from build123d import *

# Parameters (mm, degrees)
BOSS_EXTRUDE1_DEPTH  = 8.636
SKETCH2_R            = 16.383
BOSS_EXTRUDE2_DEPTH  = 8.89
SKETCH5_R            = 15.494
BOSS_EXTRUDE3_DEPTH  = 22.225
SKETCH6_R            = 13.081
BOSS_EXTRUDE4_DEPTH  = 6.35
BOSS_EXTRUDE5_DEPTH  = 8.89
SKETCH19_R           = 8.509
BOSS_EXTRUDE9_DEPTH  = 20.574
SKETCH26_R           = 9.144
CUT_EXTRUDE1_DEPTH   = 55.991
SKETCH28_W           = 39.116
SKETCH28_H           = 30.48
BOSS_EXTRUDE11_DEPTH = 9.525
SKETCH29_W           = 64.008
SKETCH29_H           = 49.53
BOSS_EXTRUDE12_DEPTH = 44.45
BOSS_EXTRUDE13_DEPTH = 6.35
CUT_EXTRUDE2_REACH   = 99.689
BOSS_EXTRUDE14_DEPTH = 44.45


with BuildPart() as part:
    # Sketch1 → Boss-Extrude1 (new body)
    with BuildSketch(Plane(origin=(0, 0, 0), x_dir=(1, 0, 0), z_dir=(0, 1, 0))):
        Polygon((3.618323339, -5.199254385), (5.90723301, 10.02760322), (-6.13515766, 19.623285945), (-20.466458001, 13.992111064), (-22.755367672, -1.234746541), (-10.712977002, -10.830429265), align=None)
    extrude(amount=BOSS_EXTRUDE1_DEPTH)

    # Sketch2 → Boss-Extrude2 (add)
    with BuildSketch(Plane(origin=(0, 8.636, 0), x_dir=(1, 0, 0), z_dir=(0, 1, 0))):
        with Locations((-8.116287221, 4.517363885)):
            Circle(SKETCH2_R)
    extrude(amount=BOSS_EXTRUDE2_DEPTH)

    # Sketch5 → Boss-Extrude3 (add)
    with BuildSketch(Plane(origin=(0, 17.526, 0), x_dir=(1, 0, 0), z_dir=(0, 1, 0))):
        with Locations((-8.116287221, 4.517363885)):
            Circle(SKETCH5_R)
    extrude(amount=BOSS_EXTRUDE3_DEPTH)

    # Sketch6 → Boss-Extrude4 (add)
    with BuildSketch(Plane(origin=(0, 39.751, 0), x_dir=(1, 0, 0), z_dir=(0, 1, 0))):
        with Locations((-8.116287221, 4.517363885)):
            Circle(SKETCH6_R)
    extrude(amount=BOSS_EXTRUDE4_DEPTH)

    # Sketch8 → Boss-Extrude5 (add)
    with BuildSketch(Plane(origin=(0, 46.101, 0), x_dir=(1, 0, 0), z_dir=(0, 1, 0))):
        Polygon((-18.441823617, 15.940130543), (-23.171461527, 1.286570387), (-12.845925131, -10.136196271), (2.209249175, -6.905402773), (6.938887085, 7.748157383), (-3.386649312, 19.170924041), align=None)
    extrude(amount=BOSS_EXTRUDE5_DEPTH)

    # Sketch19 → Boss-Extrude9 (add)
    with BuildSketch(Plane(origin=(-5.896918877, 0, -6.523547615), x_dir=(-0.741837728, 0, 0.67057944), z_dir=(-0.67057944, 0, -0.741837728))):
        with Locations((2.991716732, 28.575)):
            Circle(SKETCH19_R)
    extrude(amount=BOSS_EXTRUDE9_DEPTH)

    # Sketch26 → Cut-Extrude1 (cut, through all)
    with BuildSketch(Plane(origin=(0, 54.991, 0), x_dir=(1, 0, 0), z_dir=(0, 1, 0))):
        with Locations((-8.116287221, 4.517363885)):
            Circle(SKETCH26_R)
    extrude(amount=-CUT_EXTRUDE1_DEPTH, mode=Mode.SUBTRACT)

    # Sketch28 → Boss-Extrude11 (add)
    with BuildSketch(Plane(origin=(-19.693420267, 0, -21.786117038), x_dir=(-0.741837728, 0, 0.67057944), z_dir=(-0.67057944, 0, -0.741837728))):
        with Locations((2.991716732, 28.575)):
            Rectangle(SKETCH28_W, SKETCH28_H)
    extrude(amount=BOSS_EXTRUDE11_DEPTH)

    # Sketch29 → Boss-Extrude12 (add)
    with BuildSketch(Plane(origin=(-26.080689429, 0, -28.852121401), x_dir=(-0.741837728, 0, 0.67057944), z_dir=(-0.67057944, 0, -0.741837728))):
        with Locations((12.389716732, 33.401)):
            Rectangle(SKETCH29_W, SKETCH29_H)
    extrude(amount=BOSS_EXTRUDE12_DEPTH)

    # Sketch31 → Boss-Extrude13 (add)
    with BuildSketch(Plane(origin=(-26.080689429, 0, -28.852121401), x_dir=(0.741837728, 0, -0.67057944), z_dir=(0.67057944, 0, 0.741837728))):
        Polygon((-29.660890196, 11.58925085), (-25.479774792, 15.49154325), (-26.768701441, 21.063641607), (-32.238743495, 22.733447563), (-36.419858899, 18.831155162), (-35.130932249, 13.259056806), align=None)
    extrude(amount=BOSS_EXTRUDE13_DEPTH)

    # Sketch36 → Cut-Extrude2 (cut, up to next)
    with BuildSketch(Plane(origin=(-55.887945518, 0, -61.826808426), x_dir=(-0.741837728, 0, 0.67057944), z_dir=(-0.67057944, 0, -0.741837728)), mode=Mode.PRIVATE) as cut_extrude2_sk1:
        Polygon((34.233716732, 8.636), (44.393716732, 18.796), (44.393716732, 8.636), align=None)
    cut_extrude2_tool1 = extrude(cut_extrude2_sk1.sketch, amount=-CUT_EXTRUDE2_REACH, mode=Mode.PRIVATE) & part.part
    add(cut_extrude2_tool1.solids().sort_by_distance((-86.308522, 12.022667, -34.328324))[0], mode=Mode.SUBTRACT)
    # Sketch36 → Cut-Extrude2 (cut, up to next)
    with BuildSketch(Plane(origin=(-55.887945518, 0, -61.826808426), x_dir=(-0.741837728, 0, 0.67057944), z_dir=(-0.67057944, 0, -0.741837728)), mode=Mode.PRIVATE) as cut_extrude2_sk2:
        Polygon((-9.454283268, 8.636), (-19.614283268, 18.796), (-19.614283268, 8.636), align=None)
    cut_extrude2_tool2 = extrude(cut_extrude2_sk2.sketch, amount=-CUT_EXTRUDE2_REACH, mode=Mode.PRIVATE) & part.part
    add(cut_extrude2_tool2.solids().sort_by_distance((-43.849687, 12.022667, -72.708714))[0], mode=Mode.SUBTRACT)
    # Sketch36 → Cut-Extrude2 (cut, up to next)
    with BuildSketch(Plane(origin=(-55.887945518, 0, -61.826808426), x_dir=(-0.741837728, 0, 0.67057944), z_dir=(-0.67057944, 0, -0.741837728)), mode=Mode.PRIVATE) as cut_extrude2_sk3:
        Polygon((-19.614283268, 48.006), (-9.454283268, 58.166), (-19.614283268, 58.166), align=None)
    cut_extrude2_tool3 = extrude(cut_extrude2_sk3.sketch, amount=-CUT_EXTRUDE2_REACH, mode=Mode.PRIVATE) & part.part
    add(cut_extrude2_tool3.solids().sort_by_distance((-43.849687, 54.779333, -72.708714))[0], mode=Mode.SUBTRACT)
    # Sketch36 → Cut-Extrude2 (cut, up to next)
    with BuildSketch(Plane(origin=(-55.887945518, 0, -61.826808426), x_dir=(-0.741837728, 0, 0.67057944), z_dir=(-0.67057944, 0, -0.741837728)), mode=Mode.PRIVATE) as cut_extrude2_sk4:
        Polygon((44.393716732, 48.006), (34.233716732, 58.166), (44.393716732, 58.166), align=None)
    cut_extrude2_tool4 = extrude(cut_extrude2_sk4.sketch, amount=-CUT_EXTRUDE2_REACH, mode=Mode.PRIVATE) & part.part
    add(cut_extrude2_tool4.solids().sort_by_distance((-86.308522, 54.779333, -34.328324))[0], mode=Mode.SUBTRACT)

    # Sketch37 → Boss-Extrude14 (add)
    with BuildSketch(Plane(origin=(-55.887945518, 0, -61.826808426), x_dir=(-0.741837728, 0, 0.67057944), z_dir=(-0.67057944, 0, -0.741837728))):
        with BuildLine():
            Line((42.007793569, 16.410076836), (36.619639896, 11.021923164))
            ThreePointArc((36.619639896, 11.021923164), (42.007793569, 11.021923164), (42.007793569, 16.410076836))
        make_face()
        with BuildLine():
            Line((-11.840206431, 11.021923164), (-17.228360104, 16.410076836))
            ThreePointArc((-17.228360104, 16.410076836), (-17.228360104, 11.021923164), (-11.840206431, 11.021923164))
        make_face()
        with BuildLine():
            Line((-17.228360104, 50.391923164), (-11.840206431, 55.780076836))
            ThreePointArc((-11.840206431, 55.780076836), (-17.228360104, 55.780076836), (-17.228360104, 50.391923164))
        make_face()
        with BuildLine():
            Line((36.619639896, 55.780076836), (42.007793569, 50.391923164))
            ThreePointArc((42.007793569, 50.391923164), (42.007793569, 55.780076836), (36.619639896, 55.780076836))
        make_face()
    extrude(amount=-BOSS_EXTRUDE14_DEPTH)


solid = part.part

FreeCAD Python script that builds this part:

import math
import FreeCAD as App
import Part
import Sketcher

V = App.Vector
Q = App.Units.Quantity

doc = App.newDocument("Part")
params = doc.addObject("Spreadsheet::Sheet", "Params")
for row, (alias, value) in enumerate([
    ("pad1_length", "0.34 in"),
    ("sketch2_diameter", "1.29 in"),
    ("pad2_length", "0.35 in"),
    ("sketch3_diameter", "1.22 in"),
    ("pad3_length", "0.875 in"),
    ("sketch4_diameter", "1.03 in"),
    ("pad4_length", "0.25 in"),
    ("pad5_length", "0.35 in"),
    ("sketch6_diameter", "0.67 in"),
    ("pad6_length", "0.81 in"),
    ("sketch7_diameter", "0.72 in"),
    ("sketch8_height", "1.2 in"),
    ("sketch8_width", "1.54 in"),
    ("pad7_length", "0.375 in"),
    ("sketch9_width", "2.52 in"),
    ("sketch9_height", "1.95 in"),
    ("pad8_length", "1.75 in"),
    ("pad9_length", "0.25 in"),
    ("sketch11_width", "0.4 in"),
    ("sketch12_width", "0.4 in"),
    ("pocket3_length", "2.125 in"),
    ("sketch13_width", "0.4 in"),
    ("sketch14_width", "0.4 in"),
    ("sketch15_radius", "0.15 in"),
    ("pad10_length", "1.75 in"),
], start=1):
    params.set(f"A{row}", alias)
    params.set(f"B{row}", "=" + value)
    params.setAlias(f"B{row}", alias)

body = doc.addObject("PartDesign::Body", "Body")

sketch1 = body.newObject("Sketcher::SketchObject", "Sketch")
sketch1.AttachmentSupport = (doc.getObject("XZ_Plane"), [""])
sketch1.MapMode = "FlatFace"
sketch1.addGeometry(Part.LineSegment(V(4, 5, 0), V(6, -10, 0)), False)
sketch1.addGeometry(Part.LineSegment(V(6, -10, 0), V(-6, -20, 0)), False)
sketch1.addGeometry(Part.LineSegment(V(-6, -20, 0), V(-20, -14, 0)), False)
sketch1.addGeometry(Part.LineSegment(V(-20, -14, 0), V(-23, 1, 0)), False)
sketch1.addGeometry(Part.LineSegment(V(-23, 1, 0), V(-11, 11, 0)), False)
sketch1.addGeometry(Part.LineSegment(V(-11, 11, 0), V(4, 5, 0)), False)
sketch1.addConstraint(Sketcher.Constraint("Coincident", 0, 2, 1, 1))
sketch1.addConstraint(Sketcher.Constraint("Coincident", 1, 2, 2, 1))
sketch1.addConstraint(Sketcher.Constraint("Coincident", 2, 2, 3, 1))
sketch1.addConstraint(Sketcher.Constraint("Coincident", 3, 2, 4, 1))
sketch1.addConstraint(Sketcher.Constraint("Coincident", 4, 2, 5, 1))
sketch1.addConstraint(Sketcher.Constraint("Coincident", 5, 2, 0, 1))
sketch1.addConstraint(Sketcher.Constraint("Parallel", 0, 3))
sketch1.addConstraint(Sketcher.Constraint("Parallel", 1, 4))
sketch1.addConstraint(Sketcher.Constraint("Parallel", 2, 5))
sketch1.addConstraint(Sketcher.Constraint("Equal", 0, 1))
sketch1.addConstraint(Sketcher.Constraint("Equal", 1, 2))
sketch1.addConstraint(Sketcher.Constraint("Equal", 2, 3))
sketch1.addConstraint(Sketcher.Constraint("DistanceX", 2, 2, 1, 2, 14.3313))
sketch1.addConstraint(Sketcher.Constraint("DistanceX", 3, 2, 0, 2, 28.662601))
sketch1.addConstraint(Sketcher.Constraint("Distance", 0, 15.397932))
sketch1.addConstraint(Sketcher.Constraint("DistanceX", 2, 2, -1, 1, 20.466458))
sketch1.addConstraint(Sketcher.Constraint("DistanceY", 2, 2, -1, 1, 13.992111))
sketch1.addConstraint(Sketcher.Constraint("DistanceY", -1, 1, 4, 2, 10.830429))
pad1 = body.newObject("PartDesign::Pad", "Pad")
pad1.Profile = sketch1
pad1.setExpression("Length", "Params.pad1_length")
pad1.Reversed = True

sketch2 = body.newObject("Sketcher::SketchObject", "Sketch001")
sketch2.AttachmentSupport = (doc.getObject("XZ_Plane"), [""])
sketch2.MapMode = "FlatFace"
sketch2.AttachmentOffset = App.Placement(V(0, 0, -0.34 * 25.4), App.Rotation())
sketch2.addGeometry(Part.Circle(V(-8, -5, 0), V(0, 0, 1), 16), False)
sketch2.addConstraint(Sketcher.Constraint("Diameter", 0, Q("1.29 in")))
sketch2.addConstraint(Sketcher.Constraint("DistanceX", 0, 3, -1, 1, 8.116287))
sketch2.addConstraint(Sketcher.Constraint("DistanceY", 0, 3, -1, 1, 4.517364))
sketch2.setExpression("Constraints[0]", "Params.sketch2_diameter")
pad2 = body.newObject("PartDesign::Pad", "Pad001")
pad2.Profile = sketch2
pad2.setExpression("Length", "Params.pad2_length")
pad2.Reversed = True

sketch3 = body.newObject("Sketcher::SketchObject", "Sketch002")
sketch3.AttachmentSupport = (doc.getObject("XZ_Plane"), [""])
sketch3.MapMode = "FlatFace"
sketch3.AttachmentOffset = App.Placement(V(0, 0, -0.69 * 25.4), App.Rotation())
sketch3.addGeometry(Part.Circle(V(-8, -5, 0), V(0, 0, 1), 15), False)
sketch3.addConstraint(Sketcher.Constraint("Diameter", 0, Q("1.22 in")))
sketch3.addConstraint(Sketcher.Constraint("DistanceX", 0, 3, -1, 1, 8.116287))
sketch3.addConstraint(Sketcher.Constraint("DistanceY", 0, 3, -1, 1, 4.517364))
sketch3.setExpression("Constraints[0]", "Params.sketch3_diameter")
pad3 = body.newObject("PartDesign::Pad", "Pad002")
pad3.Profile = sketch3
pad3.setExpression("Length", "Params.pad3_length")
pad3.Reversed = True

sketch4 = body.newObject("Sketcher::SketchObject", "Sketch003")
sketch4.AttachmentSupport = (doc.getObject("XZ_Plane"), [""])
sketch4.MapMode = "FlatFace"
sketch4.AttachmentOffset = App.Placement(V(0, 0, -1.565 * 25.4), App.Rotation())
sketch4.addGeometry(Part.Circle(V(-8, -5, 0), V(0, 0, 1), 13), False)
sketch4.addConstraint(Sketcher.Constraint("Diameter", 0, Q("1.03 in")))
sketch4.addConstraint(Sketcher.Constraint("DistanceX", 0, 3, -1, 1, 8.116287))
sketch4.addConstraint(Sketcher.Constraint("DistanceY", 0, 3, -1, 1, 4.517364))
sketch4.setExpression("Constraints[0]", "Params.sketch4_diameter")
pad4 = body.newObject("PartDesign::Pad", "Pad003")
pad4.Profile = sketch4
pad4.setExpression("Length", "Params.pad4_length")
pad4.Reversed = True

sketch5 = body.newObject("Sketcher::SketchObject", "Sketch004")
sketch5.AttachmentSupport = (doc.getObject("XZ_Plane"), [""])
sketch5.MapMode = "FlatFace"
sketch5.AttachmentOffset = App.Placement(V(0, 0, -1.815 * 25.4), App.Rotation())
sketch5.addGeometry(Part.LineSegment(V(-18, -16, 0), V(-23, -1, 0)), False)
sketch5.addGeometry(Part.LineSegment(V(-23, -1, 0), V(-13, 10, 0)), False)
sketch5.addGeometry(Part.LineSegment(V(-13, 10, 0), V(2, 7, 0)), False)
sketch5.addGeometry(Part.LineSegment(V(2, 7, 0), V(7, -8, 0)), False)
sketch5.addGeometry(Part.LineSegment(V(7, -8, 0), V(-3, -19, 0)), False)
sketch5.addGeometry(Part.LineSegment(V(-3, -19, 0), V(-18, -16, 0)), False)
sketch5.addConstraint(Sketcher.Constraint("Coincident", 0, 2, 1, 1))
sketch5.addConstraint(Sketcher.Constraint("Coincident", 1, 2, 2, 1))
sketch5.addConstraint(Sketcher.Constraint("Coincident", 2, 2, 3, 1))
sketch5.addConstraint(Sketcher.Constraint("Coincident", 3, 2, 4, 1))
sketch5.addConstraint(Sketcher.Constraint("Coincident", 4, 2, 5, 1))
sketch5.addConstraint(Sketcher.Constraint("Coincident", 5, 2, 0, 1))
sketch5.addConstraint(Sketcher.Constraint("Parallel", 0, 3))
sketch5.addConstraint(Sketcher.Constraint("Parallel", 1, 4))
sketch5.addConstraint(Sketcher.Constraint("Parallel", 2, 5))
sketch5.addConstraint(Sketcher.Constraint("Equal", 0, 1))
sketch5.addConstraint(Sketcher.Constraint("Equal", 1, 2))
sketch5.addConstraint(Sketcher.Constraint("Equal", 2, 3))
sketch5.addConstraint(Sketcher.Constraint("DistanceX", 4, 2, 2, 2, 5.595898))
sketch5.addConstraint(Sketcher.Constraint("Distance", 0, 15.397932))
sketch5.addConstraint(Sketcher.Constraint("DistanceX", 0, 2, -1, 1, 23.171462))
sketch5.addConstraint(Sketcher.Constraint("DistanceY", 0, 2, -1, 1, 1.28657))
sketch5.addConstraint(Sketcher.Constraint("DistanceX", -1, 1, 2, 2, 2.209249))
sketch5.addConstraint(Sketcher.Constraint("DistanceY", 5, 2, -1, 1, 15.940131))
pad5 = body.newObject("PartDesign::Pad", "Pad004")
pad5.Profile = sketch5
pad5.setExpression("Length", "Params.pad5_length")
pad5.Reversed = True

sketch6 = body.newObject("Sketcher::SketchObject", "Sketch005")
sketch6.Placement = App.Placement(V(-5.896919, 0, -6.523548), App.Rotation(V(-0.741837728, 0, 0.67057944), V(0, 1, 0), V(-0.67057944, 0, -0.741837728), "ZXY"))
sketch6.addGeometry(Part.Circle(V(3, 29, 0), V(0, 0, 1), 9), False)
sketch6.addConstraint(Sketcher.Constraint("Diameter", 0, Q("0.67 in")))
sketch6.addConstraint(Sketcher.Constraint("DistanceY", -1, 1, 0, 3, Q("1.125 in")))
sketch6.addConstraint(Sketcher.Constraint("DistanceX", -1, 1, 0, 3, 2.991717))
sketch6.setExpression("Constraints[0]", "Params.sketch6_diameter")
pad6 = body.newObject("PartDesign::Pad", "Pad005")
pad6.Profile = sketch6
pad6.setExpression("Length", "Params.pad6_length")

sketch7 = body.newObject("Sketcher::SketchObject", "Sketch006")
sketch7.AttachmentSupport = (doc.getObject("XZ_Plane"), [""])
sketch7.MapMode = "FlatFace"
sketch7.AttachmentOffset = App.Placement(V(0, 0, -2.165 * 25.4), App.Rotation())
sketch7.addGeometry(Part.Circle(V(-8, -5, 0), V(0, 0, 1), 9), False)
sketch7.addConstraint(Sketcher.Constraint("Diameter", 0, Q("0.72 in")))
sketch7.addConstraint(Sketcher.Constraint("DistanceX", 0, 3, -1, 1, 8.116287))
sketch7.addConstraint(Sketcher.Constraint("DistanceY", 0, 3, -1, 1, 4.517364))
sketch7.setExpression("Constraints[0]", "Params.sketch7_diameter")
pocket1 = body.newObject("PartDesign::Pocket", "Pocket")
pocket1.Profile = sketch7
pocket1.Type = "ThroughAll"
pocket1.Reversed = True

sketch8 = body.newObject("Sketcher::SketchObject", "Sketch007")
sketch8.Placement = App.Placement(V(-19.69342, 0, -21.786117), App.Rotation(V(-0.741837728, 0, 0.67057944), V(0, 1, 0), V(-0.67057944, 0, -0.741837728), "ZXY"))
sketch8.addGeometry(Part.LineSegment(V(-17, 44, 0), V(-17, 13, 0)), False)
sketch8.addGeometry(Part.LineSegment(V(-17, 13, 0), V(23, 13, 0)), False)
sketch8.addGeometry(Part.LineSegment(V(23, 13, 0), V(23, 44, 0)), False)
sketch8.addGeometry(Part.LineSegment(V(23, 44, 0), V(-17, 44, 0)), False)
sketch8.addConstraint(Sketcher.Constraint("Coincident", 0, 2, 1, 1))
sketch8.addConstraint(Sketcher.Constraint("Coincident", 1, 2, 2, 1))
sketch8.addConstraint(Sketcher.Constraint("Coincident", 2, 2, 3, 1))
sketch8.addConstraint(Sketcher.Constraint("Coincident", 3, 2, 0, 1))
sketch8.addConstraint(Sketcher.Constraint("Vertical", 0))
sketch8.addConstraint(Sketcher.Constraint("Horizontal", 1))
sketch8.addConstraint(Sketcher.Constraint("Vertical", 2))
sketch8.addConstraint(Sketcher.Constraint("Horizontal", 3))
sketch8.addConstraint(Sketcher.Constraint("DistanceY", 0, 2, 0, 1, Q("1.2 in")))
sketch8.addConstraint(Sketcher.Constraint("DistanceX", 1, 1, 1, 2, Q("1.54 in")))
sketch8.addConstraint(Sketcher.Constraint("DistanceY", -1, 1, 0, 2, Q("0.525 in")))
sketch8.addConstraint(Sketcher.Constraint("DistanceX", 0, 2, -1, 1, 16.566283))
sketch8.setExpression("Constraints[8]", "Params.sketch8_height")
sketch8.setExpression("Constraints[9]", "Params.sketch8_width")
pad7 = body.newObject("PartDesign::Pad", "Pad006")
pad7.Profile = sketch8
pad7.setExpression("Length", "Params.pad7_length")

sketch9 = body.newObject("Sketcher::SketchObject", "Sketch008")
sketch9.Placement = App.Placement(V(-26.080689, 0, -28.852121), App.Rotation(V(-0.741837728, 0, 0.67057944), V(0, 1, 0), V(-0.67057944, 0, -0.741837728), "ZXY"))
sketch9.addGeometry(Part.LineSegment(V(-20, 58, 0), V(-20, 9, 0)), False)
sketch9.addGeometry(Part.LineSegment(V(-20, 9, 0), V(44, 9, 0)), False)
sketch9.addGeometry(Part.LineSegment(V(44, 9, 0), V(44, 58, 0)), False)
sketch9.addGeometry(Part.LineSegment(V(44, 58, 0), V(-20, 58, 0)), False)
sketch9.addConstraint(Sketcher.Constraint("Coincident", 0, 2, 1, 1))
sketch9.addConstraint(Sketcher.Constraint("Coincident", 1, 2, 2, 1))
sketch9.addConstraint(Sketcher.Constraint("Coincident", 2, 2, 3, 1))
sketch9.addConstraint(Sketcher.Constraint("Coincident", 3, 2, 0, 1))
sketch9.addConstraint(Sketcher.Constraint("Vertical", 0))
sketch9.addConstraint(Sketcher.Constraint("Horizontal", 1))
sketch9.addConstraint(Sketcher.Constraint("Vertical", 2))
sketch9.addConstraint(Sketcher.Constraint("Horizontal", 3))
sketch9.addConstraint(Sketcher.Constraint("DistanceX", 1, 1, 1, 2, Q("2.52 in")))
sketch9.addConstraint(Sketcher.Constraint("DistanceY", 0, 2, 0, 1, Q("1.95 in")))
sketch9.addConstraint(Sketcher.Constraint("DistanceY", -1, 1, 0, 2, Q("0.34 in")))
sketch9.addConstraint(Sketcher.Constraint("DistanceX", 0, 2, -1, 1, 19.614283))
sketch9.setExpression("Constraints[8]", "Params.sketch9_width")
sketch9.setExpression("Constraints[9]", "Params.sketch9_height")
pad8 = body.newObject("PartDesign::Pad", "Pad007")
pad8.Profile = sketch9
pad8.setExpression("Length", "Params.pad8_length")

sketch10 = body.newObject("Sketcher::SketchObject", "Sketch009")
sketch10.Placement = App.Placement(V(-26.080689, 0, -28.852121), App.Rotation(V(0.741837728, 0, -0.67057944), V(0, 1, 0), V(0.67057944, 0, 0.741837728), "ZXY"))
sketch10.addGeometry(Part.LineSegment(V(-30, 12, 0), V(-25, 15, 0)), False)
sketch10.addGeometry(Part.LineSegment(V(-25, 15, 0), V(-27, 21, 0)), False)
sketch10.addGeometry(Part.LineSegment(V(-27, 21, 0), V(-32, 23, 0)), False)
sketch10.addGeometry(Part.LineSegment(V(-32, 23, 0), V(-36, 19, 0)), False)
sketch10.addGeometry(Part.LineSegment(V(-36, 19, 0), V(-35, 13, 0)), False)
sketch10.addGeometry(Part.LineSegment(V(-35, 13, 0), V(-30, 12, 0)), False)
sketch10.addConstraint(Sketcher.Constraint("Coincident", 0, 2, 1, 1))
sketch10.addConstraint(Sketcher.Constraint("Coincident", 1, 2, 2, 1))
sketch10.addConstraint(Sketcher.Constraint("Coincident", 2, 2, 3, 1))
sketch10.addConstraint(Sketcher.Constraint("Coincident", 3, 2, 4, 1))
sketch10.addConstraint(Sketcher.Constraint("Coincident", 4, 2, 5, 1))
sketch10.addConstraint(Sketcher.Constraint("Coincident", 5, 2, 0, 1))
sketch10.addConstraint(Sketcher.Constraint("Parallel", 0, 3))
sketch10.addConstraint(Sketcher.Constraint("Parallel", 1, 4))
sketch10.addConstraint(Sketcher.Constraint("Parallel", 2, 5))
sketch10.addConstraint(Sketcher.Constraint("Equal", 0, 1))
sketch10.addConstraint(Sketcher.Constraint("Equal", 1, 2))
sketch10.addConstraint(Sketcher.Constraint("Equal", 2, 3))
sketch10.addConstraint(Sketcher.Constraint("DistanceX", 1, 2, -1, 1, 26.768701))
sketch10.addConstraint(Sketcher.Constraint("DistanceY", 0, 2, 1, 2, 5.572098))
sketch10.addConstraint(Sketcher.Constraint("Distance", 0, 5.719232))
sketch10.addConstraint(Sketcher.Constraint("DistanceY", -1, 1, 1, 2, 21.063642))
sketch10.addConstraint(Sketcher.Constraint("DistanceX", 3, 2, -1, 1, 36.419859))
sketch10.addConstraint(Sketcher.Constraint("DistanceX", 5, 2, -1, 1, 29.66089))
pad9 = body.newObject("PartDesign::Pad", "Pad008")
pad9.Profile = sketch10
pad9.setExpression("Length", "Params.pad9_length")

sketch11 = body.newObject("Sketcher::SketchObject", "Sketch010")
sketch11.Placement = App.Placement(V(-55.887946, 0, -61.826808), App.Rotation(V(-0.741837728, 0, 0.67057944), V(0, 1, 0), V(-0.67057944, 0, -0.741837728), "ZXY"))
sketch11.addGeometry(Part.LineSegment(V(44, 19, 0), V(34, 9, 0)), False)
sketch11.addGeometry(Part.LineSegment(V(34, 9, 0), V(44, 9, 0)), False)
sketch11.addGeometry(Part.LineSegment(V(44, 9, 0), V(44, 19, 0)), False)
sketch11.addConstraint(Sketcher.Constraint("Coincident", 0, 2, 1, 1))
sketch11.addConstraint(Sketcher.Constraint("Coincident", 1, 2, 2, 1))
sketch11.addConstraint(Sketcher.Constraint("Coincident", 2, 2, 0, 1))
sketch11.addConstraint(Sketcher.Constraint("Horizontal", 1))
sketch11.addConstraint(Sketcher.Constraint("Vertical", 2))
sketch11.addConstraint(Sketcher.Constraint("Equal", 1, 2))
sketch11.addConstraint(Sketcher.Constraint("DistanceX", 1, 1, 1, 2, Q("0.4 in")))
sketch11.addConstraint(Sketcher.Constraint("DistanceY", -1, 1, 0, 2, Q("0.34 in")))
sketch11.addConstraint(Sketcher.Constraint("DistanceX", -1, 1, 0, 2, 34.233717))
sketch11.setExpression("Constraints[6]", "Params.sketch11_width")
pocket2 = body.newObject("PartDesign::Pocket", "Pocket001")
pocket2.Profile = sketch11
pocket2.Type = "UpToFirst"

sketch12 = body.newObject("Sketcher::SketchObject", "Sketch011")
sketch12.Placement = App.Placement(V(-55.887946, 0, -61.826808), App.Rotation(V(-0.741837728, 0, 0.67057944), V(0, 1, 0), V(-0.67057944, 0, -0.741837728), "ZXY"))
sketch12.addGeometry(Part.LineSegment(V(-9, 9, 0), V(-20, 19, 0)), False)
sketch12.addGeometry(Part.LineSegment(V(-20, 19, 0), V(-20, 9, 0)), False)
sketch12.addGeometry(Part.LineSegment(V(-20, 9, 0), V(-9, 9, 0)), False)
sketch12.addConstraint(Sketcher.Constraint("Coincident", 0, 2, 1, 1))
sketch12.addConstraint(Sketcher.Constraint("Coincident", 1, 2, 2, 1))
sketch12.addConstraint(Sketcher.Constraint("Coincident", 2, 2, 0, 1))
sketch12.addConstraint(Sketcher.Constraint("Vertical", 1))
sketch12.addConstraint(Sketcher.Constraint("Horizontal", 2))
sketch12.addConstraint(Sketcher.Constraint("Equal", 2, 1))
sketch12.addConstraint(Sketcher.Constraint("DistanceX", 2, 1, 2, 2, Q("0.4 in")))
sketch12.addConstraint(Sketcher.Constraint("DistanceY", -1, 1, 0, 2, Q("0.74 in")))
sketch12.addConstraint(Sketcher.Constraint("DistanceX", 0, 2, -1, 1, 19.614283))
sketch12.setExpression("Constraints[6]", "Params.sketch12_width")
pocket3 = body.newObject("PartDesign::Pocket", "Pocket002")
pocket3.Profile = sketch12
pocket3.setExpression("Length", "Params.pocket3_length")

sketch13 = body.newObject("Sketcher::SketchObject", "Sketch012")
sketch13.Placement = App.Placement(V(-55.887946, 0, -61.826808), App.Rotation(V(-0.741837728, 0, 0.67057944), V(0, 1, 0), V(-0.67057944, 0, -0.741837728), "ZXY"))
sketch13.addGeometry(Part.LineSegment(V(-20, 48, 0), V(-9, 58, 0)), False)
sketch13.addGeometry(Part.LineSegment(V(-9, 58, 0), V(-20, 58, 0)), False)
sketch13.addGeometry(Part.LineSegment(V(-20, 58, 0), V(-20, 48, 0)), False)
sketch13.addConstraint(Sketcher.Constraint("Coincident", 0, 2, 1, 1))
sketch13.addConstraint(Sketcher.Constraint("Coincident", 1, 2, 2, 1))
sketch13.addConstraint(Sketcher.Constraint("Coincident", 2, 2, 0, 1))
sketch13.addConstraint(Sketcher.Constraint("Horizontal", 1))
sketch13.addConstraint(Sketcher.Constraint("Vertical", 2))
sketch13.addConstraint(Sketcher.Constraint("Equal", 1, 2))
sketch13.addConstraint(Sketcher.Constraint("DistanceX", 1, 2, 1, 1, Q("0.4 in")))
sketch13.addConstraint(Sketcher.Constraint("DistanceY", -1, 1, 0, 2, Q("2.29 in")))
sketch13.addConstraint(Sketcher.Constraint("DistanceX", 0, 2, -1, 1, 9.454283))
sketch13.setExpression("Constraints[6]", "Params.sketch13_width")
pocket4 = body.newObject("PartDesign::Pocket", "Pocket003")
pocket4.Profile = sketch13
pocket4.Type = "UpToFirst"

sketch14 = body.newObject("Sketcher::SketchObject", "Sketch013")
sketch14.Placement = App.Placement(V(-55.887946, 0, -61.826808), App.Rotation(V(-0.741837728, 0, 0.67057944), V(0, 1, 0), V(-0.67057944, 0, -0.741837728), "ZXY"))
sketch14.addGeometry(Part.LineSegment(V(34, 58, 0), V(44, 48, 0)), False)
sketch14.addGeometry(Part.LineSegment(V(44, 48, 0), V(44, 58, 0)), False)
sketch14.addGeometry(Part.LineSegment(V(44, 58, 0), V(34, 58, 0)), False)
sketch14.addConstraint(Sketcher.Constraint("Coincident", 0, 2, 1, 1))
sketch14.addConstraint(Sketcher.Constraint("Coincident", 1, 2, 2, 1))
sketch14.addConstraint(Sketcher.Constraint("Coincident", 2, 2, 0, 1))
sketch14.addConstraint(Sketcher.Constraint("Vertical", 1))
sketch14.addConstraint(Sketcher.Constraint("Horizontal", 2))
sketch14.addConstraint(Sketcher.Constraint("Equal", 2, 1))
sketch14.addConstraint(Sketcher.Constraint("DistanceX", 2, 2, 2, 1, Q("0.4 in")))
sketch14.addConstraint(Sketcher.Constraint("DistanceY", -1, 1, 0, 2, Q("1.89 in")))
sketch14.addConstraint(Sketcher.Constraint("DistanceX", -1, 1, 0, 2, 44.393717))
sketch14.setExpression("Constraints[6]", "Params.sketch14_width")
pocket5 = body.newObject("PartDesign::Pocket", "Pocket004")
pocket5.Profile = sketch14
pocket5.Type = "UpToFirst"

sketch15 = body.newObject("Sketcher::SketchObject", "Sketch014")
sketch15.Placement = App.Placement(V(-55.887946, 0, -61.826808), App.Rotation(V(-0.741837728, 0, 0.67057944), V(0, 1, 0), V(-0.67057944, 0, -0.741837728), "ZXY"))
sketch15.addGeometry(Part.LineSegment(V(42, 16.4, 0), V(36.6, 11, 0)), False)
sketch15.addGeometry(Part.ArcOfCircle(Part.Circle(V(39.3, 13.7, 0), V(0, 0, 1), 3.8), math.radians(-135), math.radians(45)), False)
sketch15.addGeometry(Part.LineSegment(V(-11.8, 11, 0), V(-17.2, 16.4, 0)), False)
sketch15.addGeometry(Part.ArcOfCircle(Part.Circle(V(-14.5, 13.7, 0), V(0, 0, 1), 3.8), math.radians(135), math.radians(315)), False)
sketch15.addGeometry(Part.LineSegment(V(-17.2, 50.4, 0), V(-11.8, 55.8, 0)), False)
sketch15.addGeometry(Part.ArcOfCircle(Part.Circle(V(-14.5, 53.1, 0), V(0, 0, 1), 3.8), math.radians(45), math.radians(225)), False)
sketch15.addGeometry(Part.LineSegment(V(36.6, 55.8, 0), V(42, 50.4, 0)), False)
sketch15.addGeometry(Part.ArcOfCircle(Part.Circle(V(39.3, 53.1, 0), V(0, 0, 1), 3.8), math.radians(-45), math.radians(135)), False)
sketch15.addConstraint(Sketcher.Constraint("Coincident", 0, 1, 1, 2))
sketch15.addConstraint(Sketcher.Constraint("Coincident", 1, 1, 0, 2))
sketch15.addConstraint(Sketcher.Constraint("Coincident", 2, 1, 3, 2))
sketch15.addConstraint(Sketcher.Constraint("Coincident", 3, 1, 2, 2))
sketch15.addConstraint(Sketcher.Constraint("Coincident", 4, 1, 5, 2))
sketch15.addConstraint(Sketcher.Constraint("Coincident", 5, 1, 4, 2))
sketch15.addConstraint(Sketcher.Constraint("Coincident", 6, 1, 7, 2))
sketch15.addConstraint(Sketcher.Constraint("Coincident", 7, 1, 6, 2))
sketch15.addConstraint(Sketcher.Constraint("Equal", 1, 3))
sketch15.addConstraint(Sketcher.Constraint("Equal", 3, 5))
sketch15.addConstraint(Sketcher.Constraint("Equal", 5, 7))
sketch15.addConstraint(Sketcher.Constraint("Perpendicular", 0, 2))
sketch15.addConstraint(Sketcher.Constraint("Perpendicular", 2, 4))
sketch15.addConstraint(Sketcher.Constraint("Perpendicular", 4, 6))
sketch15.addConstraint(Sketcher.Constraint("Horizontal", 1, 3, 3, 3))
sketch15.addConstraint(Sketcher.Constraint("Horizontal", 5, 3, 7, 3))
sketch15.addConstraint(Sketcher.Constraint("Horizontal", 1, 1, 2, 1))
sketch15.addConstraint(Sketcher.Constraint("Horizontal", 0, 1, 3, 1))
sketch15.addConstraint(Sketcher.Constraint("Horizontal", 5, 1, 6, 1))
sketch15.addConstraint(Sketcher.Constraint("Vertical", 3, 3, 5, 3))
sketch15.addConstraint(Sketcher.Constraint("Vertical", 1, 3, 7, 3))
sketch15.addConstraint(Sketcher.Constraint("Vertical", 3, 1, 4, 1))
sketch15.addConstraint(Sketcher.Constraint("Radius", 1, Q("0.15 in")))
sketch15.addConstraint(Sketcher.Constraint("DistanceY", -1, 1, 1, 3, Q("0.54 in")))
sketch15.addConstraint(Sketcher.Constraint("DistanceY", -1, 1, 5, 3, Q("2.09 in")))
sketch15.addConstraint(Sketcher.Constraint("DistanceX", 3, 3, 1, 3, Q("2.12 in")))
sketch15.addConstraint(Sketcher.Constraint("DistanceX", 2, 1, 0, 1, Q("2.12 in")))
sketch15.addConstraint(Sketcher.Constraint("DistanceX", -1, 1, 1, 1, 36.61964))
sketch15.setExpression("Constraints[22]", "Params.sketch15_radius")
pad10 = body.newObject("PartDesign::Pad", "Pad009")
pad10.Profile = sketch15
pad10.setExpression("Length", "Params.pad10_length")
pad10.Reversed = True

doc.recompute()
